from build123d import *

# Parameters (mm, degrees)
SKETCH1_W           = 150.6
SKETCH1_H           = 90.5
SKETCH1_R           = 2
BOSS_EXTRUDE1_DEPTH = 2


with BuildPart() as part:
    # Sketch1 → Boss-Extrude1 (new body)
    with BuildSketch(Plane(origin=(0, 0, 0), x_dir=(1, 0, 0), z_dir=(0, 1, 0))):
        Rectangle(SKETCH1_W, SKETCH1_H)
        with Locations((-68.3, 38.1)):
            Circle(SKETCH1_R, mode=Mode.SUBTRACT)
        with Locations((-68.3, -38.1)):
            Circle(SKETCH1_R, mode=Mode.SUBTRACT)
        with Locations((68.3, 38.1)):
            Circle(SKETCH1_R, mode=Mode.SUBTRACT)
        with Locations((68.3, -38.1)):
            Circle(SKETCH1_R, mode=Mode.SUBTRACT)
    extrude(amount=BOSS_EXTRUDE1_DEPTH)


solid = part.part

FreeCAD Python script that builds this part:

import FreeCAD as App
import Part
import Sketcher
Q = App.Units.Quantity

doc = App.newDocument("Part")
params = doc.addObject("Spreadsheet::Sheet", "Params")
for row, (alias, value) in enumerate([
    ("sketch1_diameter", "4 mm"),
    ("sketch1_width", "150.6 mm"),
    ("sketch1_height", "90.5 mm"),
    ("pad1_length", "2 mm"),
], start=1):
    params.set(f"A{row}", alias)
    params.set(f"B{row}", "=" + value)
    params.setAlias(f"B{row}", alias)

body = doc.addObject("PartDesign::Body", "Body")

# Sketch on XZ plane
sketch1 = body.newObject("Sketcher::SketchObject", "Sketch")
sketch1.AttachmentSupport = (doc.getObject("XZ_Plane"), [""])
sketch1.MapMode = "FlatFace"
sketch1.addGeometry(Part.LineSegment(App.Vector(-75.3, -45.2, 0), App.Vector(-75.3, 45.2, 0)), False)
sketch1.addGeometry(Part.LineSegment(App.Vector(-75.3, 45.2, 0), App.Vector(75.3, 45.2, 0)), False)
sketch1.addGeometry(Part.LineSegment(App.Vector(75.3, 45.2, 0), App.Vector(75.3, -45.2, 0)), False)
sketch1.addGeometry(Part.LineSegment(App.Vector(75.3, -45.2, 0), App.Vector(-75.3, -45.2, 0)), False)
sketch1.addGeometry(Part.Circle(App.Vector(-68.3, 38.1, 0), App.Vector(0, 0, 1), 2), False)
sketch1.addGeometry(Part.Circle(App.Vector(68.3, 38.1, 0), App.Vector(0, 0, 1), 2), False)
sketch1.addGeometry(Part.Circle(App.Vector(-68.3, -38.1, 0), App.Vector(0, 0, 1), 2), False)
sketch1.addGeometry(Part.Circle(App.Vector(68.3, -38.1, 0), App.Vector(0, 0, 1), 2), False)
sketch1.addConstraint(Sketcher.Constraint("Coincident", 0, 2, 1, 1))
sketch1.addConstraint(Sketcher.Constraint("Coincident", 1, 2, 2, 1))
sketch1.addConstraint(Sketcher.Constraint("Coincident", 2, 2, 3, 1))
sketch1.addConstraint(Sketcher.Constraint("Coincident", 3, 2, 0, 1))
sketch1.addConstraint(Sketcher.Constraint("Vertical", 0))
sketch1.addConstraint(Sketcher.Constraint("Horizontal", 1))
sketch1.addConstraint(Sketcher.Constraint("Vertical", 2))
sketch1.addConstraint(Sketcher.Constraint("Horizontal", 3))
sketch1.addConstraint(Sketcher.Constraint("Equal", 4, 5))
sketch1.addConstraint(Sketcher.Constraint("Equal", 5, 6))
sketch1.addConstraint(Sketcher.Constraint("Equal", 6, 7))
sketch1.addConstraint(Sketcher.Constraint("Symmetric", 5, 3, 6, 3, -1, 1))
sketch1.addConstraint(Sketcher.Constraint("Symmetric", 4, 3, 7, 3, -1, 1))
sketch1.addConstraint(Sketcher.Constraint("Symmetric", 0, 2, 2, 2, -1, 1))
sketch1.addConstraint(Sketcher.Constraint("Symmetric", 4, 3, 5, 3, -2))
sketch1.addConstraint(Sketcher.Constraint("Diameter", 4, Q("4 mm")))
sketch1.addConstraint(Sketcher.Constraint("DistanceX", 1, 1, 1, 2, Q("150.6 mm")))
sketch1.addConstraint(Sketcher.Constraint("DistanceY", 0, 1, 0, 2, Q("90.5 mm")))
sketch1.addConstraint(Sketcher.Constraint("DistanceX", 0, 2, 4, 3, Q("7 mm")))
sketch1.addConstraint(Sketcher.Constraint("DistanceY", -1, 1, 4, 3, Q("38.1 mm")))
sketch1.setExpression("Constraints[15]", "Params.sketch1_diameter")
sketch1.setExpression("Constraints[16]", "Params.sketch1_width")
sketch1.setExpression("Constraints[17]", "Params.sketch1_height")
pad1 = body.newObject("PartDesign::Pad", "Pad")
pad1.Profile = sketch1
pad1.setExpression("Length", "Params.pad1_length")
pad1.Reversed = True

doc.recompute()
